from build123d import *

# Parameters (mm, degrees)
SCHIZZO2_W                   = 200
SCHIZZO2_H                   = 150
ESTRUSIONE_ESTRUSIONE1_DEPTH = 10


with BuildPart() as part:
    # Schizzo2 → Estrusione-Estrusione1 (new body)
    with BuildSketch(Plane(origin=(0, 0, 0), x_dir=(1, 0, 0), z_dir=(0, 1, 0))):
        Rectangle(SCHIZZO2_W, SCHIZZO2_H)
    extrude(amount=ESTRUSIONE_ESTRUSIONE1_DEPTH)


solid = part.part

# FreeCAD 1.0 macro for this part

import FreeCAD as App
import Part
import Sketcher

V = App.Vector
Q = App.Units.Quantity

doc = App.newDocument("Part")
params = doc.addObject("Spreadsheet::Sheet", "Params")
for row, (alias, value) in enumerate([
    ("sketch1_width", "200 mm"),
    ("sketch1_height", "150 mm"),
    ("pad1_length", "10 mm"),
], start=1):
    params.set(f"A{row}", alias)
    params.set(f"B{row}", "=" + value)
    params.setAlias(f"B{row}", alias)

body = doc.addObject("PartDesign::Body", "Body")

sketch1 = doc.addObject("Sketcher::SketchObject", "Sketch")
body.addObject(sketch1)
sketch1.AttachmentSupport = (doc.XZ_Plane, [""])
sketch1.MapMode = "FlatFace"
sketch1.addGeometry(Part.LineSegment(V(-100, -75, 0), V(-100, 75, 0)), False)
sketch1.addGeometry(Part.LineSegment(V(-100, 75, 0), V(100, 75, 0)), False)
sketch1.addGeometry(Part.LineSegment(V(100, 75, 0), V(100, -75, 0)), False)
sketch1.addGeometry(Part.LineSegment(V(100, -75, 0), V(-100, -75, 0)), False)
sketch1.addConstraint(Sketcher.Constraint("Coincident", 0, 2, 1, 1))
sketch1.addConstraint(Sketcher.Constraint("Coincident", 1, 2, 2, 1))
sketch1.addConstraint(Sketcher.Constraint("Coincident", 2, 2, 3, 1))
sketch1.addConstraint(Sketcher.Constraint("Coincident", 3, 2, 0, 1))
sketch1.addConstraint(Sketcher.Constraint("Vertical", 0))
sketch1.addConstraint(Sketcher.Constraint("Horizontal", 1))
sketch1.addConstraint(Sketcher.Constraint("Vertical", 2))
sketch1.addConstraint(Sketcher.Constraint("Horizontal", 3))
sketch1.addConstraint(Sketcher.Constraint("Symmetric", 0, 2, 2, 2, -1, 1))
sketch1.addConstraint(Sketcher.Constraint("DistanceX", 1, 1, 1, 2, Q("200 mm")))
sketch1.addConstraint(Sketcher.Constraint("DistanceY", 0, 1, 0, 2, Q("150 mm")))
sketch1.setExpression("Constraints[9]", "Params.sketch1_width")
sketch1.setExpression("Constraints[10]", "Params.sketch1_height")
pad1 = doc.addObject("PartDesign::Pad", "Pad")
body.addObject(pad1)
pad1.Profile = sketch1
pad1.setExpression("Length", "Params.pad1_length")
pad1.Reversed = True

doc.recompute()
